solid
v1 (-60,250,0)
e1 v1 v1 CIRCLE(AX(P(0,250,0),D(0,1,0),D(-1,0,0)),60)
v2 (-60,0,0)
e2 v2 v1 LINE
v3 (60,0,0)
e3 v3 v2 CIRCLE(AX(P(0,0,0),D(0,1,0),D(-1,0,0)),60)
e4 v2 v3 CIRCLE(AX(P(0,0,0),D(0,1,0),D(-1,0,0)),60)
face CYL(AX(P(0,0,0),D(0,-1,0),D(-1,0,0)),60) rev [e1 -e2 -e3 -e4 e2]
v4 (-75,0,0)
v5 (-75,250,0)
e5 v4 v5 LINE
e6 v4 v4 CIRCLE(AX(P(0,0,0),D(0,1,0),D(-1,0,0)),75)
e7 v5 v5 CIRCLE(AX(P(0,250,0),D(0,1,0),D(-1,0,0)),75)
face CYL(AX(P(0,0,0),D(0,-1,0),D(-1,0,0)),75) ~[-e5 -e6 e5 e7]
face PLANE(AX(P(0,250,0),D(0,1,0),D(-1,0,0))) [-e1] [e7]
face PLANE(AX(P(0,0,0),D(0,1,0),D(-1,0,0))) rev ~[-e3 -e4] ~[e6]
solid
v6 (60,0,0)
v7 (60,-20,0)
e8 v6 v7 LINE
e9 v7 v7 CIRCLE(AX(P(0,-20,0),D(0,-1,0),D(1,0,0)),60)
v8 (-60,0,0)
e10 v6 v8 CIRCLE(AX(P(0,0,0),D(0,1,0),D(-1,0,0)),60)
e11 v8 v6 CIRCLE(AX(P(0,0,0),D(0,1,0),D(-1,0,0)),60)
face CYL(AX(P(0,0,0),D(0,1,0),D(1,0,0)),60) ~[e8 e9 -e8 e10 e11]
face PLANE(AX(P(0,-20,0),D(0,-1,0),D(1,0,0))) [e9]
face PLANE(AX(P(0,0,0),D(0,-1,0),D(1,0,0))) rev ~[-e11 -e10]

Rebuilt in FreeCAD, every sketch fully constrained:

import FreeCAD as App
import Part
import Sketcher
from FreeCAD import Vector

doc = App.newDocument("Part")
params = doc.addObject("Spreadsheet::Sheet", "Params")
for row, (alias, value) in enumerate([
    ("sketch1_diameter", "150 mm"),
    ("sketch1_diameter2", "120 mm"),
    ("pad1_length", "250 mm"),
    ("sketch2_diameter", "120 mm"),
    ("pad2_length", "20 mm"),
], start=1):
    params.set(f"A{row}", alias)
    params.set(f"B{row}", "=" + value)
    params.setAlias(f"B{row}", alias)

body = doc.addObject("PartDesign::Body", "Body")
body.AllowCompound = True

sketch1 = body.newObject("Sketcher::SketchObject", "Sketch")
sketch1.AttachmentSupport = (doc.getObject("XZ_Plane"), [""])
sketch1.MapMode = "FlatFace"
sketch1.addGeometry([
    Part.Circle(Vector(0, 0, 0), Vector(0, 0, 1), 75),
    Part.Circle(Vector(0, 0, 0), Vector(0, 0, 1), 60),
], False)
sketch1.addConstraint([
    Sketcher.Constraint("Coincident", 0, 3, -1, 1),
    Sketcher.Constraint("Coincident", 1, 3, -1, 1),
    Sketcher.Constraint("Diameter", 0, 150.0),
    Sketcher.Constraint("Diameter", 1, 120.0),
])
sketch1.setExpression("Constraints[2]", "Params.sketch1_diameter")
sketch1.setExpression("Constraints[3]", "Params.sketch1_diameter2")
pad1 = body.newObject("PartDesign::Pad", "Pad")
pad1.Profile = sketch1
pad1.setExpression("Length", "Params.pad1_length")
pad1.Reversed = True

sketch2 = body.newObject("Sketcher::SketchObject", "Sketch001")
sketch2.AttachmentSupport = (doc.getObject("XZ_Plane"), [""])
sketch2.MapMode = "FlatFace"
sketch2.addGeometry(Part.Circle(Vector(0, 0, 0), Vector(0, 0, 1), 60), False)
sketch2.addConstraint([
    Sketcher.Constraint("Coincident", 0, 3, -1, 1),
    Sketcher.Constraint("Diameter", 0, 120.0),
])
sketch2.setExpression("Constraints[1]", "Params.sketch2_diameter")
pad2 = body.newObject("PartDesign::Pad", "Pad001")
pad2.Profile = sketch2
pad2.setExpression("Length", "Params.pad2_length")

doc.recompute()
